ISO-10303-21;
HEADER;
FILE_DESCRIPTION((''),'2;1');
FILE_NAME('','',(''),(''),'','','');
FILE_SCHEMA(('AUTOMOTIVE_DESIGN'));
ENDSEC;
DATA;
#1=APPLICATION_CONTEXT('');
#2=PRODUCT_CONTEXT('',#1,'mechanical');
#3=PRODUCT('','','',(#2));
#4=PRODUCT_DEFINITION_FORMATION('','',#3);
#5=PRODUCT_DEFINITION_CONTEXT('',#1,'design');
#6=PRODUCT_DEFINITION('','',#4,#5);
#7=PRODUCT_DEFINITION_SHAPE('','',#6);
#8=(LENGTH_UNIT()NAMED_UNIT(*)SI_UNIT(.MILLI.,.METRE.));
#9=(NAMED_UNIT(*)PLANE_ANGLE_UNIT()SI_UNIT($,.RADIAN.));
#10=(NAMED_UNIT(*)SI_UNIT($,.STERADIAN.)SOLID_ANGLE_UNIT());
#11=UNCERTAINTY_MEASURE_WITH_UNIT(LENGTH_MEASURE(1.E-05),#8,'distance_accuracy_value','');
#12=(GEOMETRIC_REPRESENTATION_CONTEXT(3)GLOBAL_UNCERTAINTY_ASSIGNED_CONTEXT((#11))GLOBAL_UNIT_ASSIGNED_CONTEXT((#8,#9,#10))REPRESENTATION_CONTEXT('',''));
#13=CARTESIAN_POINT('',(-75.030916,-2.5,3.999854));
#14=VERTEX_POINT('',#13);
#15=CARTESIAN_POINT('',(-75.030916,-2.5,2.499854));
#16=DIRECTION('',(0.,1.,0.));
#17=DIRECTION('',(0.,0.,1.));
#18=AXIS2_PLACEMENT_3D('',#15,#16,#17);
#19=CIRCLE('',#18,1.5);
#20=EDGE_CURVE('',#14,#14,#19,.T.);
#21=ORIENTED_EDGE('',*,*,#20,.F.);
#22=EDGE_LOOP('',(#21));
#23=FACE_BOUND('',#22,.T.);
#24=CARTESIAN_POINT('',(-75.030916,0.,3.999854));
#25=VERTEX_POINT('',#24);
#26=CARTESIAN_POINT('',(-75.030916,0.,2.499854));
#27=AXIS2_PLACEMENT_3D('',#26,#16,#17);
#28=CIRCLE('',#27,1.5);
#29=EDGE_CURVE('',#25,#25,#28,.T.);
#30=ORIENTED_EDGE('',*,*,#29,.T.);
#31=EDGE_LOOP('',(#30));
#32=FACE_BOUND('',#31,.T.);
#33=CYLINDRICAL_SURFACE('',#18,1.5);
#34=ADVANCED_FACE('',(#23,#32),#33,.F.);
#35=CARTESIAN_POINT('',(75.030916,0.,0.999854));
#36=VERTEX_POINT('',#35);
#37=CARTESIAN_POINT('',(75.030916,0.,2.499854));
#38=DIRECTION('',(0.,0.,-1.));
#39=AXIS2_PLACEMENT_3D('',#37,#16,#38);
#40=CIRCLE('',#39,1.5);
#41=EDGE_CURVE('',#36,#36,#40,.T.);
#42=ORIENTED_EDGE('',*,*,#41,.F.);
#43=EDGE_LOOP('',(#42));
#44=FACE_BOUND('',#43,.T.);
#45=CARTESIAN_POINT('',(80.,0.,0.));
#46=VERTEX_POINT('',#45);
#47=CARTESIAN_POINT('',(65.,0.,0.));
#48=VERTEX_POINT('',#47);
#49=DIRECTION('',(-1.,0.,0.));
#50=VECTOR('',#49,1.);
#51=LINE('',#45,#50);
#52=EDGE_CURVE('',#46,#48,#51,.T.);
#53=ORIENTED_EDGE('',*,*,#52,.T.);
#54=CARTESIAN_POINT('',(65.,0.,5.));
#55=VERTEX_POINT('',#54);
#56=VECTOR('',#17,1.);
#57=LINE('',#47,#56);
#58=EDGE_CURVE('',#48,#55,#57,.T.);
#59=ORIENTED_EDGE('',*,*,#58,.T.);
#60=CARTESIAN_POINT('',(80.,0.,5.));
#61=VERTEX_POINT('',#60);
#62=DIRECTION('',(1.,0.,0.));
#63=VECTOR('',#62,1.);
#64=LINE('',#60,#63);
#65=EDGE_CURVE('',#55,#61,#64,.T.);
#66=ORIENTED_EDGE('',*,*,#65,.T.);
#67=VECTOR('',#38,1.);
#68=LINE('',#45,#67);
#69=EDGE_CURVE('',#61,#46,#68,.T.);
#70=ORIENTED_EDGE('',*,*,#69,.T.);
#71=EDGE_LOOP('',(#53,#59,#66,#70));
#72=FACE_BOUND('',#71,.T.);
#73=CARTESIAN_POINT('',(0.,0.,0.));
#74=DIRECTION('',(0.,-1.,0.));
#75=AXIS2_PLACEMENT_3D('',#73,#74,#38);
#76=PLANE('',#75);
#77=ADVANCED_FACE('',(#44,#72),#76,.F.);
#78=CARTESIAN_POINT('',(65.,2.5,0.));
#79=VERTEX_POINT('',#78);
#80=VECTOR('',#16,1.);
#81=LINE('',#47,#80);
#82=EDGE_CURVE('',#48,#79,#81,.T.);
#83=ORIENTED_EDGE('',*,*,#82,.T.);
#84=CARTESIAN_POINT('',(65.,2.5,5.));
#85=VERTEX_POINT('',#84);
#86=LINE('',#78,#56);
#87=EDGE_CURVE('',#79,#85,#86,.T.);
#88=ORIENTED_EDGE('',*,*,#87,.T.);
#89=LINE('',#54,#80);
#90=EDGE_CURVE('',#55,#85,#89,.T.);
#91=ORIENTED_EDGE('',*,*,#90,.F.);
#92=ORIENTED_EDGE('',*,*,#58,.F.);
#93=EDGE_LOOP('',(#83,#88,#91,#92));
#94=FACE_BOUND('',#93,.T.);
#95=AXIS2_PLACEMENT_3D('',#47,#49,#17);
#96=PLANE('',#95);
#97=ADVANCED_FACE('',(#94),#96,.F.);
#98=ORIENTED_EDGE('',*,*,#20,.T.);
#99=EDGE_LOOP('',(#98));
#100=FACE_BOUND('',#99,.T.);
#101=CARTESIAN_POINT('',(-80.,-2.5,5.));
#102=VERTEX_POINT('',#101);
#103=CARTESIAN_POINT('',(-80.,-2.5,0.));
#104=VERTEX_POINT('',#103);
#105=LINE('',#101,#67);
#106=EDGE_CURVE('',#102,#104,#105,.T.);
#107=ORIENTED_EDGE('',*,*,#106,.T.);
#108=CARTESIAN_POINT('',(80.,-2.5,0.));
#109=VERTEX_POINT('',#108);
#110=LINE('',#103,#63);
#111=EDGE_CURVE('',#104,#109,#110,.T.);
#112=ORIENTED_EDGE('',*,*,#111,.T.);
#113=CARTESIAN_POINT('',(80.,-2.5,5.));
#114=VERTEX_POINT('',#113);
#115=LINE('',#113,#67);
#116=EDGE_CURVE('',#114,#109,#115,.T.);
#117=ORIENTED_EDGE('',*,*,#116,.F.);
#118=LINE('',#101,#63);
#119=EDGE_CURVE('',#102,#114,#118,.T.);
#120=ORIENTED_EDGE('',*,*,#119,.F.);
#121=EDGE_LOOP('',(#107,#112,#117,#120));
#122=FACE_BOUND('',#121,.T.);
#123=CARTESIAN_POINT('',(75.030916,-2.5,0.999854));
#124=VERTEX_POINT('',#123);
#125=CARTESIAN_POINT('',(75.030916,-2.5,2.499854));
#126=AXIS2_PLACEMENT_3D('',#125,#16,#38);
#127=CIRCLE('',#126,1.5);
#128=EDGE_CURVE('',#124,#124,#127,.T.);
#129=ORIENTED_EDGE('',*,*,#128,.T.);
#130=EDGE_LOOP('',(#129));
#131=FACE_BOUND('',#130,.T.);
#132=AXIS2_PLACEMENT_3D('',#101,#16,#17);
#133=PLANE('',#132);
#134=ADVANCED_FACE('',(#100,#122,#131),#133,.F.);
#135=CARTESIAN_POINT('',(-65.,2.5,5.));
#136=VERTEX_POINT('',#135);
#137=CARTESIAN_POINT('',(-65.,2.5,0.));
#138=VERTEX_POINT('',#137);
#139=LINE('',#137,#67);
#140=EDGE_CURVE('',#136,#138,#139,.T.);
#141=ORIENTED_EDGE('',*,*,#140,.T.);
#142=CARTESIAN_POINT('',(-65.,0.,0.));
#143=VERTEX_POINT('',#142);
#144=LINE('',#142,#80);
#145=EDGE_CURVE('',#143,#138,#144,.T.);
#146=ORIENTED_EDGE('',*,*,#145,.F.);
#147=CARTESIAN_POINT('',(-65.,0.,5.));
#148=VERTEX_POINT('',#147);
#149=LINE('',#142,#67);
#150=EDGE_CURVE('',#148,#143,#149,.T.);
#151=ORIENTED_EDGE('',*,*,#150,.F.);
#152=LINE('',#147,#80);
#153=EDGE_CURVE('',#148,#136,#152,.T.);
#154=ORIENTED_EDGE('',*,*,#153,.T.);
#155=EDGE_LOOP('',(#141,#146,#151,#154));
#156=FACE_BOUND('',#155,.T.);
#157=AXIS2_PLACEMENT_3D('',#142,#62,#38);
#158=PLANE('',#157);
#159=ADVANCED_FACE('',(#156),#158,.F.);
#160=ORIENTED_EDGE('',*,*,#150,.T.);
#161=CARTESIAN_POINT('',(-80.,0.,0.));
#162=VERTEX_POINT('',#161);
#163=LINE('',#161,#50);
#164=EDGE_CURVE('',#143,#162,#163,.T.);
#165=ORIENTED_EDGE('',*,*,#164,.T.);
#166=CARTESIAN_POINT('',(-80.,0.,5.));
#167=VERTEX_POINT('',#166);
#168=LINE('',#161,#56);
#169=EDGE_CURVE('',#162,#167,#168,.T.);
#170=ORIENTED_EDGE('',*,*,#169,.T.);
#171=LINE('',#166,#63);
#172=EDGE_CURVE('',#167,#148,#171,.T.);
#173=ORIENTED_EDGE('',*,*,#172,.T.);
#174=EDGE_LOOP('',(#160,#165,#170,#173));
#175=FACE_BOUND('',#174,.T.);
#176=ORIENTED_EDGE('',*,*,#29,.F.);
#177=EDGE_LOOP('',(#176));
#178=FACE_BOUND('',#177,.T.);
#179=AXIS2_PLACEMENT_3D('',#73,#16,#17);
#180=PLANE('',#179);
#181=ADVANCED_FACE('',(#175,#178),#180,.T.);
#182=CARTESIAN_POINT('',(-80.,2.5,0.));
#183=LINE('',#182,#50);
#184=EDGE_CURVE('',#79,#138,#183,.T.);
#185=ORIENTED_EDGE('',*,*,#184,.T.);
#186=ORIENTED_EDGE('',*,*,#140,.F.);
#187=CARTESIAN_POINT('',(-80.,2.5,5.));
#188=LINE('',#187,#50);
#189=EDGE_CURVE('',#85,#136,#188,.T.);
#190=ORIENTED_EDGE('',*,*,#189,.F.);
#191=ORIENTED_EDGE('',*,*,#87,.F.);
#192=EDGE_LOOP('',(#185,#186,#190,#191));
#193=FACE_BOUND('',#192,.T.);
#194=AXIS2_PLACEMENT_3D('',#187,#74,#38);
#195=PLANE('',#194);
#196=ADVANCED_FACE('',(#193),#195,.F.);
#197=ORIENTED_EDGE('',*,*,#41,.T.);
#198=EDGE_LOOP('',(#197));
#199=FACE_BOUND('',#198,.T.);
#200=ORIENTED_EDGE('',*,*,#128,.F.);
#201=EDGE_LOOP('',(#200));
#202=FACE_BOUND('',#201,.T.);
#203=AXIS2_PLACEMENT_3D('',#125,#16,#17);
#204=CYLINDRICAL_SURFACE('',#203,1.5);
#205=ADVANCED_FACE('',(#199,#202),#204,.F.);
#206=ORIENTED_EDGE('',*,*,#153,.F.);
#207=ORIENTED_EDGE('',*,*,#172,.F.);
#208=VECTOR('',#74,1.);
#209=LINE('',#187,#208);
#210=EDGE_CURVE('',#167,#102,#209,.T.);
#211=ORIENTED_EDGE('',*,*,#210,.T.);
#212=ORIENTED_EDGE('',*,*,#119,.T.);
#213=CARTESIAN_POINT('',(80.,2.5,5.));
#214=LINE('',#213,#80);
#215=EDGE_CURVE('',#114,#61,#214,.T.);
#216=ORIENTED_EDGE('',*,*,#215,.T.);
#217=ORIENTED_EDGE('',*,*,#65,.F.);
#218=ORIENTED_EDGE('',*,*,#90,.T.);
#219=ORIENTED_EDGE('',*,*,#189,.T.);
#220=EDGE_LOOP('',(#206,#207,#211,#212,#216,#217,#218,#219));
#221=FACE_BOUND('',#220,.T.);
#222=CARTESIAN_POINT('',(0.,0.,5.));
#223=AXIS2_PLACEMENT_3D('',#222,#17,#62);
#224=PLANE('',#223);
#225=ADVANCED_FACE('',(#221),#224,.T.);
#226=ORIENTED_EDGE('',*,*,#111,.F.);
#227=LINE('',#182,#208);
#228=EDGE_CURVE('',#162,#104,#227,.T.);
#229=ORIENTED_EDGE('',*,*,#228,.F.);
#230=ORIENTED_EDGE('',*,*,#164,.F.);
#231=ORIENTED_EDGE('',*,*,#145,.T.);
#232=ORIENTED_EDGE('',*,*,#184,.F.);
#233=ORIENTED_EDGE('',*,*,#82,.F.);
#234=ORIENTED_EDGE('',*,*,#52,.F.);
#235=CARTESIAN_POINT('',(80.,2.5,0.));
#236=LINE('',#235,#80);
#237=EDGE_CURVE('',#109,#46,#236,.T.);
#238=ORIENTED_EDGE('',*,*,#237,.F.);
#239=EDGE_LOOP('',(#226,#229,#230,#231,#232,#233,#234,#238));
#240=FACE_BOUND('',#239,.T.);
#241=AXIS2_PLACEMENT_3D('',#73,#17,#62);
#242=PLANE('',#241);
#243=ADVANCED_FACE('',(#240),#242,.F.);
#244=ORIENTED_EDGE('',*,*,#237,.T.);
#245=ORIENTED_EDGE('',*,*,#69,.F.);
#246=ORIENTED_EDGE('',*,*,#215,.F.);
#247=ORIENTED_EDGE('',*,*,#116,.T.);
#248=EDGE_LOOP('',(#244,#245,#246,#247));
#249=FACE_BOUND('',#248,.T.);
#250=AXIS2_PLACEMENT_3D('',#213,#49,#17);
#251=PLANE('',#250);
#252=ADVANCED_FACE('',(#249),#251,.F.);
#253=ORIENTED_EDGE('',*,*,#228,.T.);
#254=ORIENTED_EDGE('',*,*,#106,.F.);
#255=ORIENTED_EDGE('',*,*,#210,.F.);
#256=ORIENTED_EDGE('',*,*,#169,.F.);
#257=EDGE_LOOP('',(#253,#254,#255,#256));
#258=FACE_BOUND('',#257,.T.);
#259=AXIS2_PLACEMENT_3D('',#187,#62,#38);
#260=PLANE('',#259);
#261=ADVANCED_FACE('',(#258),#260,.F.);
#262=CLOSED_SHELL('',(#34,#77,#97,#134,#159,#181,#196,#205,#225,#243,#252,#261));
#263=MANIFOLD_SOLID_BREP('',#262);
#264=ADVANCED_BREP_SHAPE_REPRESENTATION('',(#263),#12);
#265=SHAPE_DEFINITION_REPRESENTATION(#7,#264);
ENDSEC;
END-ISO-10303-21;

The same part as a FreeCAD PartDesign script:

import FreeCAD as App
import Part
import Sketcher
Q = App.Units.Quantity


def add_polygon(sketch, points):
    """Adds a closed chain of lines whose ends are joined by coincident constraints."""
    first, n = sketch.GeometryCount, len(points)
    for a, b in zip(points, points[1:] + points[:1]):
        sketch.addGeometry(Part.LineSegment(App.Vector(*a, 0), App.Vector(*b, 0)), False)
    for i in range(n):
        sketch.addConstraint(Sketcher.Constraint("Coincident", first + i, 2, first + (i + 1) % n, 1))

doc = App.newDocument("Part")
body = doc.addObject("PartDesign::Body", "Body")

# Sketch on XY plane
sketch1 = body.newObject("Sketcher::SketchObject", "Sketch")
sketch1.AttachmentSupport = (doc.getObject("XY_Plane"), [""])
sketch1.MapMode = "FlatFace"
add_polygon(sketch1, [(-80, 2.5), (-80, -2.5), (80, -2.5), (80, 2.5)])  # lines 0-3
sketch1.addConstraint(Sketcher.Constraint("Vertical", 0))
sketch1.addConstraint(Sketcher.Constraint("Horizontal", 1))
sketch1.addConstraint(Sketcher.Constraint("Vertical", 2))
sketch1.addConstraint(Sketcher.Constraint("Horizontal", 3))
sketch1.addConstraint(Sketcher.Constraint("Symmetric", 0, 2, 2, 2, -1, 1))
sketch1.addConstraint(Sketcher.Constraint("DistanceX", 1, 1, 1, 2, Q("160 mm")))
sketch1.addConstraint(Sketcher.Constraint("DistanceY", 0, 2, 0, 1, Q("5 mm")))
pad1 = body.newObject("PartDesign::Pad", "Pad")
pad1.Profile = sketch1
pad1.Length = 5

# Sketch on XZ plane
sketch2 = body.newObject("Sketcher::SketchObject", "Sketch001")
sketch2.AttachmentSupport = (doc.getObject("XZ_Plane"), [""])
sketch2.MapMode = "FlatFace"
sketch2.AttachmentOffset = App.Placement(App.Vector(0, 0, -2.5), App.Rotation())
add_polygon(sketch2, [(-80, 0), (-80, 5), (-65, 5), (-65, 0)])  # lines 0-3
add_polygon(sketch2, [(65, 0), (65, 5), (80, 5), (80, 0)])  # lines 4-7
sketch2.addConstraint(Sketcher.Constraint("Vertical", 0))
sketch2.addConstraint(Sketcher.Constraint("Horizontal", 1))
sketch2.addConstraint(Sketcher.Constraint("Vertical", 2))
sketch2.addConstraint(Sketcher.Constraint("Horizontal", 3))
sketch2.addConstraint(Sketcher.Constraint("Vertical", 4))
sketch2.addConstraint(Sketcher.Constraint("Horizontal", 5))
sketch2.addConstraint(Sketcher.Constraint("Vertical", 6))
sketch2.addConstraint(Sketcher.Constraint("Horizontal", 7))
sketch2.addConstraint(Sketcher.Constraint("Symmetric", 3, 2, 6, 2, -1, 1))
sketch2.addConstraint(Sketcher.Constraint("Symmetric", 1, 2, 4, 2, -2))
sketch2.addConstraint(Sketcher.Constraint("PointOnObject", 2, 2, -1))
sketch2.addConstraint(Sketcher.Constraint("DistanceX", 1, 1, 1, 2, Q("15 mm")))
sketch2.addConstraint(Sketcher.Constraint("DistanceY", 0, 1, 0, 2, Q("5 mm")))
sketch2.addConstraint(Sketcher.Constraint("DistanceX", 0, 2, -1, 1, Q("80 mm")))
pocket1 = body.newObject("PartDesign::Pocket", "Pocket")
pocket1.Profile = sketch2
pocket1.Length = 2.5
pocket1.Reversed = True

# Sketch on XZ plane
sketch3 = body.newObject("Sketcher::SketchObject", "Sketch002")
sketch3.AttachmentSupport = (doc.getObject("XZ_Plane"), [""])
sketch3.MapMode = "FlatFace"
sketch3.addGeometry(Part.Circle(App.Vector(-75.030916, 2.499854, 0), App.Vector(0, 0, 1), 1.5), False)
sketch3.addGeometry(Part.Circle(App.Vector(75.030916, 2.499854, 0), App.Vector(0, 0, 1), 1.5), False)
sketch3.addConstraint(Sketcher.Constraint("Equal", 0, 1))
sketch3.addConstraint(Sketcher.Constraint("Symmetric", 0, 3, 1, 3, -2))
sketch3.addConstraint(Sketcher.Constraint("Diameter", 0, Q("3 mm")))
sketch3.addConstraint(Sketcher.Constraint("DistanceX", 0, 3, -1, 1, Q("75.030916 mm")))
sketch3.addConstraint(Sketcher.Constraint("DistanceY", -1, 1, 0, 3, Q("2.499854 mm")))
pocket2 = body.newObject("PartDesign::Pocket", "Pocket001")
pocket2.Profile = sketch3
pocket2.Length = 2.5
pocket2.Reversed = True

doc.recompute()
